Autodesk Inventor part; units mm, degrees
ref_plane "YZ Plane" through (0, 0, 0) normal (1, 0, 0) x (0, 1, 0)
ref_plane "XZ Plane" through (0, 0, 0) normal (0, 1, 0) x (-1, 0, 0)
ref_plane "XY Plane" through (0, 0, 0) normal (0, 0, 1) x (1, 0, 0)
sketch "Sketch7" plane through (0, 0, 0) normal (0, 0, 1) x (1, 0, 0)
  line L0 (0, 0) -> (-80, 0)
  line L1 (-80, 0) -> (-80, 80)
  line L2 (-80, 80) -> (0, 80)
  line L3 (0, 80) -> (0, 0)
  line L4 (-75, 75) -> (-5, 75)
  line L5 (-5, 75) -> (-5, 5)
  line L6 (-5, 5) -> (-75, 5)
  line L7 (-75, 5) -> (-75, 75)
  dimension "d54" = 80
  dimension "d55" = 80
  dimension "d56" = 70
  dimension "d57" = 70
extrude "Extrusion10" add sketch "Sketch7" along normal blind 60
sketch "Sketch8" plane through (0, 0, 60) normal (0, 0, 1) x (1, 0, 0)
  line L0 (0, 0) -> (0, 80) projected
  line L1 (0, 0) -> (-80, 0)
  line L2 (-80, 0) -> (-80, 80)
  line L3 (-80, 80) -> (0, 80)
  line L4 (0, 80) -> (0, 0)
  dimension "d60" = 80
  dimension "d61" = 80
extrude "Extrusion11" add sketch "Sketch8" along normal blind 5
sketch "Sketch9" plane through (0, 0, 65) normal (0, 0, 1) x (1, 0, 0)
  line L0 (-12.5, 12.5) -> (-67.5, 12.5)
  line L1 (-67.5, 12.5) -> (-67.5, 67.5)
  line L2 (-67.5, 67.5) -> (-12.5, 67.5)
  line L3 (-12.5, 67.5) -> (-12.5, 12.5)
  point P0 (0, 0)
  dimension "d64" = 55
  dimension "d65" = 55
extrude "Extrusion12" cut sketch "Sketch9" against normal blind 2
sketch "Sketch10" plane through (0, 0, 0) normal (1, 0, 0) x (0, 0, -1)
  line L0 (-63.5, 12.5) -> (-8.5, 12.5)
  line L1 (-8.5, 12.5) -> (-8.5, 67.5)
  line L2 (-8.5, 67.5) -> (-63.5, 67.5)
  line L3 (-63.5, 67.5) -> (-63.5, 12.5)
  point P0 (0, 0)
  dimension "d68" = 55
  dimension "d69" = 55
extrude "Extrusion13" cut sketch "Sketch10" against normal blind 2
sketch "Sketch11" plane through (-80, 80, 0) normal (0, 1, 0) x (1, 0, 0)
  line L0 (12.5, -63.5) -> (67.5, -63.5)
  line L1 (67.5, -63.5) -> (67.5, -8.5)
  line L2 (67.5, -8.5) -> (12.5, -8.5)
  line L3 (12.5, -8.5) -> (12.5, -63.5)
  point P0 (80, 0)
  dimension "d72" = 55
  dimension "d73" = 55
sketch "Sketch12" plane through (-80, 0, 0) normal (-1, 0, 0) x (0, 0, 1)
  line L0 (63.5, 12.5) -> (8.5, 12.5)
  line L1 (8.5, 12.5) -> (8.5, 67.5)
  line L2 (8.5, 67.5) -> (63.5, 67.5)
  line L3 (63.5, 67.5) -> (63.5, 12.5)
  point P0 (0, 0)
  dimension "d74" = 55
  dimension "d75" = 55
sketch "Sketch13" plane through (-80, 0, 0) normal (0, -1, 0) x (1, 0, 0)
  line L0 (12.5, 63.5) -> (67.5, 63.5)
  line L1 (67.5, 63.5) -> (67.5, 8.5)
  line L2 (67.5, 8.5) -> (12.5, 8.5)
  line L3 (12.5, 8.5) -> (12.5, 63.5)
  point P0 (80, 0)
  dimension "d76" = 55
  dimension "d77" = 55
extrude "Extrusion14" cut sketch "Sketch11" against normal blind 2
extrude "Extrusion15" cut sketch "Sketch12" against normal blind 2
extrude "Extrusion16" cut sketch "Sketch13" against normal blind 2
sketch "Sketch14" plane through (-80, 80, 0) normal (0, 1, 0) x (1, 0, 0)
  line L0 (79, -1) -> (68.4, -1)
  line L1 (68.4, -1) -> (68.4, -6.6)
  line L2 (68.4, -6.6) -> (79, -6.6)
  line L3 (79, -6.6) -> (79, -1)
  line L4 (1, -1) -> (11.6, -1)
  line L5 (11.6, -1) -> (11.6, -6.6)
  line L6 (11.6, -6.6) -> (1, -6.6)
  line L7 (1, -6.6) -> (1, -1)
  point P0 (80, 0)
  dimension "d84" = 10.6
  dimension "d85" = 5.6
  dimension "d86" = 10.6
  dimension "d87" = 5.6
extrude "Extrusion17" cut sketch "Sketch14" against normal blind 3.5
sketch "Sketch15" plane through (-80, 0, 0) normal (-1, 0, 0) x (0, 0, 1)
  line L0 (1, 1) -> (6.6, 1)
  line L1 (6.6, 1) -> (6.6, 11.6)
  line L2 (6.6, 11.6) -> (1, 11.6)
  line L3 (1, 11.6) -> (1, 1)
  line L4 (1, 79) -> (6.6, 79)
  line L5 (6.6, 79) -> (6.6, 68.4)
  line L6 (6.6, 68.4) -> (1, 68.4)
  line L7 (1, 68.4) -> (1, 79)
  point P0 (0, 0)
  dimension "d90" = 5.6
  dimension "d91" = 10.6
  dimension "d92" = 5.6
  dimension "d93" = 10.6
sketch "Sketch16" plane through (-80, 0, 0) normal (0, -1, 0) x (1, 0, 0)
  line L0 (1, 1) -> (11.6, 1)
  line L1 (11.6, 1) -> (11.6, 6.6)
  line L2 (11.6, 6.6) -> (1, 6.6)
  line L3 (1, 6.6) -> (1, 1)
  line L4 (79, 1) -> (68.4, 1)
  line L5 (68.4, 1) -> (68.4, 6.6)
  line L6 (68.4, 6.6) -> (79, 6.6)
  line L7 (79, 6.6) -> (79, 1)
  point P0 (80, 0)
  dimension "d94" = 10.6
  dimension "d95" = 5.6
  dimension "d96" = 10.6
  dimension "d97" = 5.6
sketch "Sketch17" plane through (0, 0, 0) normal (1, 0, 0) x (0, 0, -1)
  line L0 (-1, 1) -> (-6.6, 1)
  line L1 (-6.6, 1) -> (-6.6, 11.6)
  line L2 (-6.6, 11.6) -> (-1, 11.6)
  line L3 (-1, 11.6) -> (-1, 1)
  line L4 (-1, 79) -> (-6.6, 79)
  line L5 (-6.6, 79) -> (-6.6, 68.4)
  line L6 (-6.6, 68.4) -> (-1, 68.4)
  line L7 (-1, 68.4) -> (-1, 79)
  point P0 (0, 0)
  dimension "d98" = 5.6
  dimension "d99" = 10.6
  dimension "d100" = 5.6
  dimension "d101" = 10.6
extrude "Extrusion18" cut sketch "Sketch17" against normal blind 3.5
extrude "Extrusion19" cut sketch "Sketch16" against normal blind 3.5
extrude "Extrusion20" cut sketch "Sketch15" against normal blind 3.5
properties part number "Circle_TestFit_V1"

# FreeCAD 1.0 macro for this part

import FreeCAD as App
import Part
import Sketcher
from FreeCAD import Vector
Q = App.Units.Quantity


def add_polygon(sketch, points):
    """Adds a closed chain of lines whose ends are joined by coincident constraints."""
    first, n = sketch.GeometryCount, len(points)
    for a, b in zip(points, points[1:] + points[:1]):
        sketch.addGeometry(Part.LineSegment(App.Vector(*a, 0), App.Vector(*b, 0)), False)
    for i in range(n):
        sketch.addConstraint(Sketcher.Constraint("Coincident", first + i, 2, first + (i + 1) % n, 1))

doc = App.newDocument("Part")
body = doc.addObject("PartDesign::Body", "Body")

sketch1 = body.newObject("Sketcher::SketchObject", "Sketch")
sketch1.AttachmentSupport = (doc.getObject("XY_Plane"), [""])
sketch1.MapMode = "FlatFace"
add_polygon(sketch1, [(-80, 0), (0, 0), (0, 80), (-80, 80)])
add_polygon(sketch1, [(-75, 5), (-75, 75), (-5, 75), (-5, 5)])
sketch1.addConstraint([
    Sketcher.Constraint("Horizontal", 0),
    Sketcher.Constraint("Vertical", 1),
    Sketcher.Constraint("Horizontal", 2),
    Sketcher.Constraint("Vertical", 3),
    Sketcher.Constraint("Vertical", 4),
    Sketcher.Constraint("Horizontal", 5),
    Sketcher.Constraint("Vertical", 6),
    Sketcher.Constraint("Horizontal", 7),
    Sketcher.Constraint("Coincident", 0, 2, -1, 1),
    Sketcher.Constraint("Equal", 2, 1),
    Sketcher.Constraint("Equal", 7, 4),
    Sketcher.Constraint("DistanceX", 0, 1, 0, 2, Q("80 mm")),
    Sketcher.Constraint("DistanceX", 5, 1, 5, 2, Q("70 mm")),
    Sketcher.Constraint("DistanceX", 4, 2, -1, 1, Q("75 mm")),
    Sketcher.Constraint("DistanceY", -1, 1, 4, 2, Q("75 mm")),
])
pad1 = body.newObject("PartDesign::Pad", "Pad")
pad1.Profile = sketch1
pad1.Length = 60

sketch2 = body.newObject("Sketcher::SketchObject", "Sketch001")
sketch2.AttachmentSupport = (doc.getObject("XY_Plane"), [""])
sketch2.MapMode = "FlatFace"
sketch2.AttachmentOffset = App.Placement(Vector(0, 0, 60), App.Rotation())
add_polygon(sketch2, [(-80, 0), (0, 0), (0, 80), (-80, 80)])
sketch2.addConstraint([
    Sketcher.Constraint("Horizontal", 0),
    Sketcher.Constraint("Vertical", 1),
    Sketcher.Constraint("Horizontal", 2),
    Sketcher.Constraint("Vertical", 3),
    Sketcher.Constraint("Coincident", 0, 2, -1, 1),
    Sketcher.Constraint("Equal", 2, 1),
    Sketcher.Constraint("DistanceX", 0, 1, 0, 2, Q("80 mm")),
])
pad2 = body.newObject("PartDesign::Pad", "Pad001")
pad2.Profile = sketch2
pad2.Length = 5

sketch3 = body.newObject("Sketcher::SketchObject", "Sketch002")
sketch3.AttachmentSupport = (doc.getObject("XY_Plane"), [""])
sketch3.MapMode = "FlatFace"
sketch3.AttachmentOffset = App.Placement(Vector(0, 0, 65), App.Rotation())
add_polygon(sketch3, [(-67.5, 12.5), (-12.5, 12.5), (-12.5, 67.5), (-67.5, 67.5)])
sketch3.addConstraint([
    Sketcher.Constraint("Horizontal", 0),
    Sketcher.Constraint("Vertical", 1),
    Sketcher.Constraint("Horizontal", 2),
    Sketcher.Constraint("Vertical", 3),
    Sketcher.Constraint("Equal", 2, 1),
    Sketcher.Constraint("DistanceX", 0, 1, 0, 2, Q("55 mm")),
    Sketcher.Constraint("DistanceX", 0, 2, -1, 1, Q("12.5 mm")),
    Sketcher.Constraint("DistanceY", -1, 1, 0, 2, Q("12.5 mm")),
])
pocket1 = body.newObject("PartDesign::Pocket", "Pocket")
pocket1.Profile = sketch3
pocket1.Length = 2

sketch4 = body.newObject("Sketcher::SketchObject", "Sketch003")
sketch4.AttachmentSupport = (doc.getObject("YZ_Plane"), [""])
sketch4.MapMode = "FlatFace"
add_polygon(sketch4, [(67.5, 63.5), (12.5, 63.5), (12.5, 8.5), (67.5, 8.5)])
sketch4.addConstraint([
    Sketcher.Constraint("Horizontal", 0),
    Sketcher.Constraint("Vertical", 1),
    Sketcher.Constraint("Horizontal", 2),
    Sketcher.Constraint("Vertical", 3),
    Sketcher.Constraint("Equal", 2, 1),
    Sketcher.Constraint("DistanceX", 0, 2, 0, 1, Q("55 mm")),
    Sketcher.Constraint("DistanceX", -1, 1, 0, 2, Q("12.5 mm")),
    Sketcher.Constraint("DistanceY", -1, 1, 0, 2, Q("63.5 mm")),
])
pocket2 = body.newObject("PartDesign::Pocket", "Pocket001")
pocket2.Profile = sketch4
pocket2.Length = 2

sketch5 = body.newObject("Sketcher::SketchObject", "Sketch004")
sketch5.AttachmentSupport = (doc.getObject("XZ_Plane"), [""])
sketch5.MapMode = "FlatFace"
sketch5.AttachmentOffset = App.Placement(Vector(0, 0, -80), App.Rotation())
add_polygon(sketch5, [(-67.5, 8.5), (-67.5, 63.5), (-12.5, 63.5), (-12.5, 8.5)])
sketch5.addConstraint([
    Sketcher.Constraint("Vertical", 0),
    Sketcher.Constraint("Horizontal", 1),
    Sketcher.Constraint("Vertical", 2),
    Sketcher.Constraint("Horizontal", 3),
    Sketcher.Constraint("Equal", 3, 0),
    Sketcher.Constraint("DistanceX", 1, 1, 1, 2, Q("55 mm")),
    Sketcher.Constraint("DistanceX", 0, 2, -1, 1, Q("67.5 mm")),
    Sketcher.Constraint("DistanceY", -1, 1, 0, 2, Q("63.5 mm")),
])
pocket3 = body.newObject("PartDesign::Pocket", "Pocket002")
pocket3.Profile = sketch5
pocket3.Length = 2
pocket3.Reversed = True

sketch6 = body.newObject("Sketcher::SketchObject", "Sketch005")
sketch6.AttachmentSupport = (doc.getObject("YZ_Plane"), [""])
sketch6.MapMode = "FlatFace"
sketch6.AttachmentOffset = App.Placement(Vector(0, 0, -80), App.Rotation())
add_polygon(sketch6, [(12.5, 8.5), (12.5, 63.5), (67.5, 63.5), (67.5, 8.5)])
sketch6.addConstraint([
    Sketcher.Constraint("Vertical", 0),
    Sketcher.Constraint("Horizontal", 1),
    Sketcher.Constraint("Vertical", 2),
    Sketcher.Constraint("Horizontal", 3),
    Sketcher.Constraint("Equal", 3, 0),
    Sketcher.Constraint("DistanceX", 1, 1, 1, 2, Q("55 mm")),
    Sketcher.Constraint("DistanceX", -1, 1, 0, 2, Q("12.5 mm")),
    Sketcher.Constraint("DistanceY", -1, 1, 0, 2, Q("63.5 mm")),
])
pocket4 = body.newObject("PartDesign::Pocket", "Pocket003")
pocket4.Profile = sketch6
pocket4.Length = 2
pocket4.Reversed = True

sketch7 = body.newObject("Sketcher::SketchObject", "Sketch006")
sketch7.AttachmentSupport = (doc.getObject("XZ_Plane"), [""])
sketch7.MapMode = "FlatFace"
add_polygon(sketch7, [(-12.5, 63.5), (-67.5, 63.5), (-67.5, 8.5), (-12.5, 8.5)])
sketch7.addConstraint([
    Sketcher.Constraint("Horizontal", 0),
    Sketcher.Constraint("Vertical", 1),
    Sketcher.Constraint("Horizontal", 2),
    Sketcher.Constraint("Vertical", 3),
    Sketcher.Constraint("Equal", 2, 1),
    Sketcher.Constraint("DistanceX", 0, 2, 0, 1, Q("55 mm")),
    Sketcher.Constraint("DistanceX", 0, 2, -1, 1, Q("67.5 mm")),
    Sketcher.Constraint("DistanceY", -1, 1, 0, 2, Q("63.5 mm")),
])
pocket5 = body.newObject("PartDesign::Pocket", "Pocket004")
pocket5.Profile = sketch7
pocket5.Length = 2

sketch8 = body.newObject("Sketcher::SketchObject", "Sketch007")
sketch8.AttachmentSupport = (doc.getObject("XZ_Plane"), [""])
sketch8.MapMode = "FlatFace"
sketch8.AttachmentOffset = App.Placement(Vector(0, 0, -80), App.Rotation())
add_polygon(sketch8, [(-1, 6.6), (-1, 1), (-11.6, 1), (-11.6, 6.6)])
add_polygon(sketch8, [(-68.4, 1), (-79, 1), (-79, 6.6), (-68.4, 6.6)])
sketch8.addConstraint([
    Sketcher.Constraint("Vertical", 0),
    Sketcher.Constraint("Horizontal", 1),
    Sketcher.Constraint("Vertical", 2),
    Sketcher.Constraint("Horizontal", 3),
    Sketcher.Constraint("Horizontal", 4),
    Sketcher.Constraint("Vertical", 5),
    Sketcher.Constraint("Horizontal", 6),
    Sketcher.Constraint("Vertical", 7),
    Sketcher.Constraint("Horizontal", 1, 2, 4, 2),
    Sketcher.Constraint("Horizontal", 3, 2, 5, 2),
    Sketcher.Constraint("Equal", 3, 4),
    Sketcher.Constraint("DistanceX", 1, 2, 1, 1, Q("10.6 mm")),
    Sketcher.Constraint("DistanceY", 0, 2, 0, 1, Q("5.6 mm")),
    Sketcher.Constraint("DistanceX", 0, 2, -1, 1, Q("1 mm")),
    Sketcher.Constraint("DistanceY", -1, 1, 0, 2, Q("1 mm")),
    Sketcher.Constraint("DistanceX", 4, 2, -1, 1, Q("79 mm")),
])
pocket6 = body.newObject("PartDesign::Pocket", "Pocket005")
pocket6.Profile = sketch8
pocket6.Length = 3.5
pocket6.Reversed = True

sketch9 = body.newObject("Sketcher::SketchObject", "Sketch008")
sketch9.AttachmentSupport = (doc.getObject("YZ_Plane"), [""])
sketch9.MapMode = "FlatFace"
add_polygon(sketch9, [(1, 6.6), (1, 1), (11.6, 1), (11.6, 6.6)])
add_polygon(sketch9, [(68.4, 1), (79, 1), (79, 6.6), (68.4, 6.6)])
sketch9.addConstraint([
    Sketcher.Constraint("Vertical", 0),
    Sketcher.Constraint("Horizontal", 1),
    Sketcher.Constraint("Vertical", 2),
    Sketcher.Constraint("Horizontal", 3),
    Sketcher.Constraint("Horizontal", 4),
    Sketcher.Constraint("Vertical", 5),
    Sketcher.Constraint("Horizontal", 6),
    Sketcher.Constraint("Vertical", 7),
    Sketcher.Constraint("Horizontal", 1, 2, 4, 2),
    Sketcher.Constraint("Horizontal", 3, 2, 5, 2),
    Sketcher.Constraint("Equal", 3, 4),
    Sketcher.Constraint("DistanceX", 1, 1, 1, 2, Q("10.6 mm")),
    Sketcher.Constraint("DistanceY", 0, 2, 0, 1, Q("5.6 mm")),
    Sketcher.Constraint("DistanceX", -1, 1, 0, 2, Q("1 mm")),
    Sketcher.Constraint("DistanceY", -1, 1, 0, 2, Q("1 mm")),
    Sketcher.Constraint("DistanceX", -1, 1, 4, 2, Q("79 mm")),
])
pocket7 = body.newObject("PartDesign::Pocket", "Pocket006")
pocket7.Profile = sketch9
pocket7.Length = 3.5

sketch10 = body.newObject("Sketcher::SketchObject", "Sketch009")
sketch10.AttachmentSupport = (doc.getObject("XZ_Plane"), [""])
sketch10.MapMode = "FlatFace"
add_polygon(sketch10, [(-79, 6.6), (-79, 1), (-68.4, 1), (-68.4, 6.6)])
add_polygon(sketch10, [(-11.6, 1), (-1, 1), (-1, 6.6), (-11.6, 6.6)])
sketch10.addConstraint([
    Sketcher.Constraint("Vertical", 0),
    Sketcher.Constraint("Horizontal", 1),
    Sketcher.Constraint("Vertical", 2),
    Sketcher.Constraint("Horizontal", 3),
    Sketcher.Constraint("Horizontal", 4),
    Sketcher.Constraint("Vertical", 5),
    Sketcher.Constraint("Horizontal", 6),
    Sketcher.Constraint("Vertical", 7),
    Sketcher.Constraint("Horizontal", 1, 2, 4, 2),
    Sketcher.Constraint("Horizontal", 3, 2, 5, 2),
    Sketcher.Constraint("Equal", 3, 4),
    Sketcher.Constraint("DistanceX", 1, 1, 1, 2, Q("10.6 mm")),
    Sketcher.Constraint("DistanceY", 0, 2, 0, 1, Q("5.6 mm")),
    Sketcher.Constraint("DistanceX", 0, 2, -1, 1, Q("79 mm")),
    Sketcher.Constraint("DistanceY", -1, 1, 0, 2, Q("1 mm")),
    Sketcher.Constraint("DistanceX", 4, 2, -1, 1, Q("1 mm")),
])
pocket8 = body.newObject("PartDesign::Pocket", "Pocket007")
pocket8.Profile = sketch10
pocket8.Length = 3.5

sketch11 = body.newObject("Sketcher::SketchObject", "Sketch010")
sketch11.AttachmentSupport = (doc.getObject("YZ_Plane"), [""])
sketch11.MapMode = "FlatFace"
sketch11.AttachmentOffset = App.Placement(Vector(0, 0, -80), App.Rotation())
add_polygon(sketch11, [(11.6, 1), (1, 1), (1, 6.6), (11.6, 6.6)])
add_polygon(sketch11, [(79, 6.6), (79, 1), (68.4, 1), (68.4, 6.6)])
sketch11.addConstraint([
    Sketcher.Constraint("Horizontal", 0),
    Sketcher.Constraint("Vertical", 1),
    Sketcher.Constraint("Horizontal", 2),
    Sketcher.Constraint("Vertical", 3),
    Sketcher.Constraint("Vertical", 4),
    Sketcher.Constraint("Horizontal", 5),
    Sketcher.Constraint("Vertical", 6),
    Sketcher.Constraint("Horizontal", 7),
    Sketcher.Constraint("Horizontal", 3, 2, 4, 2),
    Sketcher.Constraint("Horizontal", 2, 2, 6, 2),
    Sketcher.Constraint("Equal", 2, 5),
    Sketcher.Constraint("DistanceX", 0, 2, 0, 1, Q("10.6 mm")),
    Sketcher.Constraint("DistanceY", 1, 1, 1, 2, Q("5.6 mm")),
    Sketcher.Constraint("DistanceX", -1, 1, 0, 2, Q("1 mm")),
    Sketcher.Constraint("DistanceY", -1, 1, 0, 2, Q("1 mm")),
    Sketcher.Constraint("DistanceX", -1, 1, 4, 2, Q("79 mm")),
])
pocket9 = body.newObject("PartDesign::Pocket", "Pocket008")
pocket9.Profile = sketch11
pocket9.Length = 3.5
pocket9.Reversed = True

doc.recompute()
